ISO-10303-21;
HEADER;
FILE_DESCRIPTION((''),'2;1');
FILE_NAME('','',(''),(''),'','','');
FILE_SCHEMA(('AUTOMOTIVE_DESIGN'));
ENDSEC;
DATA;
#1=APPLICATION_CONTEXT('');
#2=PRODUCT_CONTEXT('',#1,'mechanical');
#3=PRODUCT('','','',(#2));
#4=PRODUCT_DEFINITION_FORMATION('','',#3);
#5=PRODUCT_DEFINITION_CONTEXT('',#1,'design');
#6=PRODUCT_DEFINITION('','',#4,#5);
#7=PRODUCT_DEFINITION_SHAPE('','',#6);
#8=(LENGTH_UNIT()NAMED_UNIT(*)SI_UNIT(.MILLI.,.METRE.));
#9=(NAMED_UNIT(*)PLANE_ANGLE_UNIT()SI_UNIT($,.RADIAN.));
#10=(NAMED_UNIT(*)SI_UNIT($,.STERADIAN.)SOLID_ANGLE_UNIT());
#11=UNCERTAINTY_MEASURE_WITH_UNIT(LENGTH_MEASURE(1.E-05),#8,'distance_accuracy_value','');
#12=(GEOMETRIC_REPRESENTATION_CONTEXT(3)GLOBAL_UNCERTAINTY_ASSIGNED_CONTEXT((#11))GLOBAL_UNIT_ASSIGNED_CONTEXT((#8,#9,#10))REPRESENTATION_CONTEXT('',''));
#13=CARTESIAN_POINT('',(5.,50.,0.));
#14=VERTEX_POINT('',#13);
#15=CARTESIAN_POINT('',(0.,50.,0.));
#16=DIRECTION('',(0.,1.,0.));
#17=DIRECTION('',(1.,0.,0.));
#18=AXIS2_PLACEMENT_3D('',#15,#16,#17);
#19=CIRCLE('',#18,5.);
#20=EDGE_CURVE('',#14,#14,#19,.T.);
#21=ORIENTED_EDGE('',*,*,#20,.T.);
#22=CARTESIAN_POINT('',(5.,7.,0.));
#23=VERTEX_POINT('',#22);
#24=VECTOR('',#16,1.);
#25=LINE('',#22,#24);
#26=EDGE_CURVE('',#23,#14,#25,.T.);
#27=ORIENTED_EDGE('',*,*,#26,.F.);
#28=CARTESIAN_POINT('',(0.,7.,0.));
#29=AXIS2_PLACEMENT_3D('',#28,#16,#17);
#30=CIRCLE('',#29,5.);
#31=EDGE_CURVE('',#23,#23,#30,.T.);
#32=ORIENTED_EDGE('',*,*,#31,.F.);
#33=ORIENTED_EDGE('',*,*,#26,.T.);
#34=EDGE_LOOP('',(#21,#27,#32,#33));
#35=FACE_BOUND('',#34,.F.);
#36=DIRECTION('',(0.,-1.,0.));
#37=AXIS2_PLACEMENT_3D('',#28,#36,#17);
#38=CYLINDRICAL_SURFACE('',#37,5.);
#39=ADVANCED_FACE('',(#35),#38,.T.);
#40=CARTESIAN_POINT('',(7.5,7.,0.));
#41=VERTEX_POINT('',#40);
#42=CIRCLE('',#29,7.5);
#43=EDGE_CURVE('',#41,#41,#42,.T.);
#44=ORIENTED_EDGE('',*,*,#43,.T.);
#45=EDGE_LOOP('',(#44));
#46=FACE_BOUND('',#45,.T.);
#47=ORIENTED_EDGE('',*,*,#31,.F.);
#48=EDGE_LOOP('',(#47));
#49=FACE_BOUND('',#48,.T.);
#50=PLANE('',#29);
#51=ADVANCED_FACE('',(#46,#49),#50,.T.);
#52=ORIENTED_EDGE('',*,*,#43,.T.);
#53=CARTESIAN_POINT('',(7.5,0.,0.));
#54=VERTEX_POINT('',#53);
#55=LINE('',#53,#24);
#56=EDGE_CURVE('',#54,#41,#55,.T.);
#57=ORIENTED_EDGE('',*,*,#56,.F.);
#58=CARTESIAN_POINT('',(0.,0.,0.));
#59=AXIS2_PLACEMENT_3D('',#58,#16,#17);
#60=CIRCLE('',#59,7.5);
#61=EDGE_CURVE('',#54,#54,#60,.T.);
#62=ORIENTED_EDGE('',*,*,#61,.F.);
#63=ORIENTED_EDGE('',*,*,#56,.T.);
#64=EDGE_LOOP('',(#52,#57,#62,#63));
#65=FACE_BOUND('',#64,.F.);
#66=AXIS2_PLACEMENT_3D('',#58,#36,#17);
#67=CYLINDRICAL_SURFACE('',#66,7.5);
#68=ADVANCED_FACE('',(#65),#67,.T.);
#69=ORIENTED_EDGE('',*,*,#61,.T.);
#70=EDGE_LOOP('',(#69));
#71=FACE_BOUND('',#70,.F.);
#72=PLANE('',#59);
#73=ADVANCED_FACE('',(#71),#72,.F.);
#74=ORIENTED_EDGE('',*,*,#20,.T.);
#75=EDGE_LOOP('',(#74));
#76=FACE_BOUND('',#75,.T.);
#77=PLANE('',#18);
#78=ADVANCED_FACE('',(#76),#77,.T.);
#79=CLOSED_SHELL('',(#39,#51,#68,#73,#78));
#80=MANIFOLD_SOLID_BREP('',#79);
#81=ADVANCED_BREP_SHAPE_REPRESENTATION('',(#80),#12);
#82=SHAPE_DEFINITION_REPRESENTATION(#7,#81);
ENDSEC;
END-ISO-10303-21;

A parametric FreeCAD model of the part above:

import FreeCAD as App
import Part
import Sketcher
Q = App.Units.Quantity

doc = App.newDocument("Part")
params = doc.addObject("Spreadsheet::Sheet", "Params")
for row, (alias, value) in enumerate([
    ("sketch1_diameter", "15 mm"),
    ("pad1_length", "7 mm"),
    ("sketch2_diameter", "10 mm"),
    ("pad2_length", "43 mm"),
], start=1):
    params.set(f"A{row}", alias)
    params.set(f"B{row}", "=" + value)
    params.setAlias(f"B{row}", alias)

body = doc.addObject("PartDesign::Body", "Body")

sketch1 = doc.addObject("Sketcher::SketchObject", "Sketch")
body.addObject(sketch1)
sketch1.AttachmentSupport = (doc.XZ_Plane, [""])
sketch1.MapMode = "FlatFace"
sketch1.addGeometry(Part.Circle(App.Vector(0, 0, 0), App.Vector(0, 0, 1), 7.5), False)
sketch1.addConstraint(Sketcher.Constraint("Coincident", 0, 3, -1, 1))
sketch1.addConstraint(Sketcher.Constraint("Diameter", 0, Q("15 mm")))
sketch1.setExpression("Constraints[1]", "Params.sketch1_diameter")
pad1 = doc.addObject("PartDesign::Pad", "Pad")
body.addObject(pad1)
pad1.Profile = sketch1
pad1.setExpression("Length", "Params.pad1_length")
pad1.Reversed = True

sketch2 = doc.addObject("Sketcher::SketchObject", "Sketch001")
body.addObject(sketch2)
sketch2.AttachmentSupport = (doc.XZ_Plane, [""])
sketch2.MapMode = "FlatFace"
sketch2.AttachmentOffset = App.Placement(App.Vector(0, 0, -7), App.Rotation())
sketch2.addGeometry(Part.Circle(App.Vector(0, 0, 0), App.Vector(0, 0, 1), 5), False)
sketch2.addConstraint(Sketcher.Constraint("Coincident", 0, 3, -1, 1))
sketch2.addConstraint(Sketcher.Constraint("Diameter", 0, Q("10 mm")))
sketch2.setExpression("Constraints[1]", "Params.sketch2_diameter")
pad2 = doc.addObject("PartDesign::Pad", "Pad001")
body.addObject(pad2)
pad2.Profile = sketch2
pad2.setExpression("Length", "Params.pad2_length")
pad2.Reversed = True

doc.recompute()
